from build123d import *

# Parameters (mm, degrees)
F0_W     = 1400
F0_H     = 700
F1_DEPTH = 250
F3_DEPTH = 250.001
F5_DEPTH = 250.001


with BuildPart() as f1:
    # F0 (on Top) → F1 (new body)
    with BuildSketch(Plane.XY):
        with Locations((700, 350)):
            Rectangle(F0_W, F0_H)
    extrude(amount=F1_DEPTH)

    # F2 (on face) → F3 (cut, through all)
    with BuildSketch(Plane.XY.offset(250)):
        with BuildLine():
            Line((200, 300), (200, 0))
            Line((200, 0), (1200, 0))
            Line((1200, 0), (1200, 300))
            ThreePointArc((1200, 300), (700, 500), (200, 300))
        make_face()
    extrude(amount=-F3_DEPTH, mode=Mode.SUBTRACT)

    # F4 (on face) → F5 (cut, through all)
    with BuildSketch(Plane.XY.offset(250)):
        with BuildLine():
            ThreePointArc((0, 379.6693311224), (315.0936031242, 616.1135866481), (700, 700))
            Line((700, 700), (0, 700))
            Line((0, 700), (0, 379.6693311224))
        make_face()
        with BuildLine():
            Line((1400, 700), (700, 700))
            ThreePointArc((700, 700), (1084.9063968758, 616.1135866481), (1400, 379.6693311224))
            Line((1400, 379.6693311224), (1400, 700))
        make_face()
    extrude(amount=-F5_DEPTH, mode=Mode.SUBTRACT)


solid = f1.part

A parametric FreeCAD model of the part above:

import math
import FreeCAD as App
import Part
import Sketcher
Q = App.Units.Quantity

doc = App.newDocument("Part")
body = doc.addObject("PartDesign::Body", "Body")

# Sketch on XY plane
sketch1 = doc.addObject("Sketcher::SketchObject", "Sketch")
body.addObject(sketch1)
sketch1.AttachmentSupport = (doc.XY_Plane, [""])
sketch1.MapMode = "FlatFace"
sketch1.addGeometry(Part.LineSegment(App.Vector(0, 700, 0), App.Vector(0, 0, 0)), False)
sketch1.addGeometry(Part.LineSegment(App.Vector(0, 0, 0), App.Vector(1400, 0, 0)), False)
sketch1.addGeometry(Part.LineSegment(App.Vector(1400, 0, 0), App.Vector(1400, 700, 0)), False)
sketch1.addGeometry(Part.LineSegment(App.Vector(1400, 700, 0), App.Vector(0, 700, 0)), False)
sketch1.addConstraint(Sketcher.Constraint("Coincident", 0, 2, 1, 1))
sketch1.addConstraint(Sketcher.Constraint("Coincident", 1, 2, 2, 1))
sketch1.addConstraint(Sketcher.Constraint("Coincident", 2, 2, 3, 1))
sketch1.addConstraint(Sketcher.Constraint("Coincident", 3, 2, 0, 1))
sketch1.addConstraint(Sketcher.Constraint("Vertical", 0))
sketch1.addConstraint(Sketcher.Constraint("Horizontal", 1))
sketch1.addConstraint(Sketcher.Constraint("Vertical", 2))
sketch1.addConstraint(Sketcher.Constraint("Horizontal", 3))
sketch1.addConstraint(Sketcher.Constraint("Coincident", 0, 2, -1, 1))
sketch1.addConstraint(Sketcher.Constraint("DistanceX", 1, 1, 1, 2, Q("1400 mm")))
sketch1.addConstraint(Sketcher.Constraint("DistanceY", 0, 2, 0, 1, Q("700 mm")))
pad1 = doc.addObject("PartDesign::Pad", "Pad")
body.addObject(pad1)
pad1.Profile = sketch1
pad1.Length = 250

# Sketch on XY plane
sketch2 = doc.addObject("Sketcher::SketchObject", "Sketch001")
body.addObject(sketch2)
sketch2.AttachmentSupport = (doc.XY_Plane, [""])
sketch2.MapMode = "FlatFace"
sketch2.AttachmentOffset = App.Placement(App.Vector(0, 0, 250), App.Rotation())
sketch2.addGeometry(Part.LineSegment(App.Vector(200, 300, 0), App.Vector(200, 0, 0)), False)
sketch2.addGeometry(Part.LineSegment(App.Vector(200, 0, 0), App.Vector(1200, 0, 0)), False)
sketch2.addGeometry(Part.LineSegment(App.Vector(1200, 0, 0), App.Vector(1200, 300, 0)), False)
sketch2.addGeometry(Part.ArcOfCircle(Part.Circle(App.Vector(700, -225, 0), App.Vector(0, 0, 1), 725), math.radians(46), math.radians(134)), False)
sketch2.addConstraint(Sketcher.Constraint("Coincident", 0, 2, 1, 1))
sketch2.addConstraint(Sketcher.Constraint("Coincident", 1, 2, 2, 1))
sketch2.addConstraint(Sketcher.Constraint("Coincident", 2, 2, 3, 1))
sketch2.addConstraint(Sketcher.Constraint("Coincident", 3, 2, 0, 1))
sketch2.addConstraint(Sketcher.Constraint("Vertical", 0))
sketch2.addConstraint(Sketcher.Constraint("Horizontal", 1))
sketch2.addConstraint(Sketcher.Constraint("Vertical", 2))
sketch2.addConstraint(Sketcher.Constraint("PointOnObject", 0, 2, -1))
sketch2.addConstraint(Sketcher.Constraint("Horizontal", 2, 2, 3, 2))
sketch2.addConstraint(Sketcher.Constraint("Radius", 3, Q("725 mm")))
sketch2.addConstraint(Sketcher.Constraint("DistanceX", 1, 1, 1, 2, Q("1000 mm")))
sketch2.addConstraint(Sketcher.Constraint("DistanceY", 0, 2, 0, 1, Q("300 mm")))
sketch2.addConstraint(Sketcher.Constraint("DistanceX", -1, 1, 3, 3, Q("700 mm")))
pocket1 = doc.addObject("PartDesign::Pocket", "Pocket")
body.addObject(pocket1)
pocket1.Profile = sketch2
pocket1.Type = "ThroughAll"

# Sketch on XY plane
sketch3 = doc.addObject("Sketcher::SketchObject", "Sketch002")
body.addObject(sketch3)
sketch3.AttachmentSupport = (doc.XY_Plane, [""])
sketch3.MapMode = "FlatFace"
sketch3.AttachmentOffset = App.Placement(App.Vector(0, 0, 250), App.Rotation())
sketch3.addGeometry(Part.ArcOfCircle(Part.Circle(App.Vector(700, -225, 0), App.Vector(0, 0, 1), 925), math.radians(90), math.radians(139)), False)
sketch3.addGeometry(Part.LineSegment(App.Vector(700, 700, 0), App.Vector(0, 700, 0)), False)
sketch3.addGeometry(Part.LineSegment(App.Vector(0, 700, 0), App.Vector(0, 380, 0)), False)
sketch3.addGeometry(Part.LineSegment(App.Vector(1400, 700, 0), App.Vector(700, 700, 0)), False)
sketch3.addGeometry(Part.ArcOfCircle(Part.Circle(App.Vector(700, -225, 0), App.Vector(0, 0, 1), 925), math.radians(41), math.radians(90)), False)
sketch3.addGeometry(Part.LineSegment(App.Vector(1400, 380, 0), App.Vector(1400, 700, 0)), False)
sketch3.addConstraint(Sketcher.Constraint("Tangent", 0, 1, 1, 1))
sketch3.addConstraint(Sketcher.Constraint("Coincident", 1, 2, 2, 1))
sketch3.addConstraint(Sketcher.Constraint("Coincident", 2, 2, 0, 2))
sketch3.addConstraint(Sketcher.Constraint("Tangent", 3, 2, 4, 2))
sketch3.addConstraint(Sketcher.Constraint("Coincident", 4, 1, 5, 1))
sketch3.addConstraint(Sketcher.Constraint("Coincident", 5, 2, 3, 1))
sketch3.addConstraint(Sketcher.Constraint("Horizontal", 1))
sketch3.addConstraint(Sketcher.Constraint("Vertical", 2))
sketch3.addConstraint(Sketcher.Constraint("Horizontal", 3))
sketch3.addConstraint(Sketcher.Constraint("Vertical", 5))
sketch3.addConstraint(Sketcher.Constraint("Coincident", 4, 3, 0, 3))
sketch3.addConstraint(Sketcher.Constraint("Equal", 0, 4))
sketch3.addConstraint(Sketcher.Constraint("PointOnObject", 1, 2, -2))
sketch3.addConstraint(Sketcher.Constraint("Equal", 1, 3))
sketch3.addConstraint(Sketcher.Constraint("Radius", 0, Q("925 mm")))
sketch3.addConstraint(Sketcher.Constraint("DistanceX", 1, 2, 1, 1, Q("700 mm")))
sketch3.addConstraint(Sketcher.Constraint("DistanceY", 0, 3, -1, 1, Q("225 mm")))
pocket2 = doc.addObject("PartDesign::Pocket", "Pocket001")
body.addObject(pocket2)
pocket2.Profile = sketch3
pocket2.Type = "ThroughAll"

doc.recompute()
